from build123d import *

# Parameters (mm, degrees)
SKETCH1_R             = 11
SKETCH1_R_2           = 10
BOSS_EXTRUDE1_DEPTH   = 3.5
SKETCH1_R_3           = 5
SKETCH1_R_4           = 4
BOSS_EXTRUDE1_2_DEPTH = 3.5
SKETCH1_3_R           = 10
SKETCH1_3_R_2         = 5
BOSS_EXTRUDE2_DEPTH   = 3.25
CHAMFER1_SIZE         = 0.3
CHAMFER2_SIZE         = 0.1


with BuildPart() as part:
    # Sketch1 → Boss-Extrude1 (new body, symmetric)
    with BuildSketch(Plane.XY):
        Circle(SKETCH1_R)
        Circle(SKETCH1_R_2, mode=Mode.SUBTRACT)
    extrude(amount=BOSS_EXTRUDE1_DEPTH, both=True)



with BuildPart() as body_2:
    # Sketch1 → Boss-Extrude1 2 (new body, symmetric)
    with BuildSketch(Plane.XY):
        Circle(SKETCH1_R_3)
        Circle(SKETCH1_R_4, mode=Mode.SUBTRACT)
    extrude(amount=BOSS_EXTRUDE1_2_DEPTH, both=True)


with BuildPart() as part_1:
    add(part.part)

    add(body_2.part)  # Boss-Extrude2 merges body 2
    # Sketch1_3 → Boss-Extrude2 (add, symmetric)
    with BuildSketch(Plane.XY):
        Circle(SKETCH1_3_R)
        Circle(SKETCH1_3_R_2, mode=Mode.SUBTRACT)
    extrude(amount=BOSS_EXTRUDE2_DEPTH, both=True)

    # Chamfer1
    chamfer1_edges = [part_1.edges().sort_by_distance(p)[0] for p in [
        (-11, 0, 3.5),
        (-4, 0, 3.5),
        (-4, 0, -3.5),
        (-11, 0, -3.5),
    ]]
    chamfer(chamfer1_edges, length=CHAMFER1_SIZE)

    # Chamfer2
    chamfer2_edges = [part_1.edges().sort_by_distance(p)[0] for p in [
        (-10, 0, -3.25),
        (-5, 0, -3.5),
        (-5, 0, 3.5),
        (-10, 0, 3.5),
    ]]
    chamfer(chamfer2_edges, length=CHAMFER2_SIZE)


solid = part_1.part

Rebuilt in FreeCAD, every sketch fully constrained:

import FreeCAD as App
import Part
import Sketcher

V = App.Vector
Q = App.Units.Quantity


def edges_at(feature, points):
    """Names of the edges that pass closest to the given points."""
    edges = feature.Shape.Edges
    near = lambda p: min(range(len(edges)), key=lambda i: edges[i].distToShape(Part.Vertex(*p))[0])
    return sorted({f"Edge{near(p) + 1}" for p in points})

doc = App.newDocument("Part")
body = doc.addObject("PartDesign::Body", "Body")

# Sketch on XY plane
sketch1 = body.newObject("Sketcher::SketchObject", "Sketch")
sketch1.AttachmentSupport = (doc.getObject("XY_Plane"), [""])
sketch1.MapMode = "FlatFace"
sketch1.addGeometry(Part.Circle(V(0, 0, 0), V(0, 0, 1), 11), False)
sketch1.addGeometry(Part.Circle(V(0, 0, 0), V(0, 0, 1), 10), False)
sketch1.addConstraint(Sketcher.Constraint("Coincident", 0, 3, -1, 1))
sketch1.addConstraint(Sketcher.Constraint("Coincident", 1, 3, -1, 1))
sketch1.addConstraint(Sketcher.Constraint("Diameter", 0, Q("22 mm")))
sketch1.addConstraint(Sketcher.Constraint("Diameter", 1, Q("20 mm")))
pad1 = body.newObject("PartDesign::Pad", "Pad")
pad1.Profile = sketch1
pad1.Length = 7
pad1.Midplane = True
body2 = doc.addObject("PartDesign::Body", "Body001")

# Sketch on XY plane
sketch2 = body2.newObject("Sketcher::SketchObject", "Sketch001")
sketch2.AttachmentSupport = (doc.getObject("XY_Plane001"), [""])
sketch2.MapMode = "FlatFace"
sketch2.addGeometry(Part.Circle(V(0, 0, 0), V(0, 0, 1), 5), False)
sketch2.addGeometry(Part.Circle(V(0, 0, 0), V(0, 0, 1), 4), False)
sketch2.addConstraint(Sketcher.Constraint("Coincident", 0, 3, -1, 1))
sketch2.addConstraint(Sketcher.Constraint("Coincident", 1, 3, -1, 1))
sketch2.addConstraint(Sketcher.Constraint("Diameter", 0, Q("10 mm")))
sketch2.addConstraint(Sketcher.Constraint("Diameter", 1, Q("8 mm")))
pad2 = body2.newObject("PartDesign::Pad", "Pad001")
pad2.Profile = sketch2
pad2.Length = 7
pad2.Midplane = True
body.AllowCompound = True
doc.recompute()

boolean = body.newObject("PartDesign::Boolean", "Boolean")
boolean.Type = "Fuse"
boolean.addObjects([body2])

# Sketch on XY plane
sketch3 = body.newObject("Sketcher::SketchObject", "Sketch002")
sketch3.AttachmentSupport = (doc.getObject("XY_Plane"), [""])
sketch3.MapMode = "FlatFace"
sketch3.addGeometry(Part.Circle(V(0, 0, 0), V(0, 0, 1), 10), False)
sketch3.addGeometry(Part.Circle(V(0, 0, 0), V(0, 0, 1), 5), False)
sketch3.addConstraint(Sketcher.Constraint("Coincident", 0, 3, -1, 1))
sketch3.addConstraint(Sketcher.Constraint("Coincident", 1, 3, -1, 1))
sketch3.addConstraint(Sketcher.Constraint("Diameter", 0, Q("20 mm")))
sketch3.addConstraint(Sketcher.Constraint("Diameter", 1, Q("10 mm")))
pad3 = body.newObject("PartDesign::Pad", "Pad002")
pad3.Profile = sketch3
pad3.Length = 6.5
pad3.Midplane = True
doc.recompute()

chamfer = body.newObject("PartDesign::Chamfer", "Chamfer")
chamfer.Base = (pad3, edges_at(pad3, [
    (-11, 0, 3.5),
    (-4, 0, 3.5),
    (-4, 0, -3.5),
    (-11, 0, -3.5),
]))
chamfer.Size = 0.3
doc.recompute()

chamfer2 = body.newObject("PartDesign::Chamfer", "Chamfer001")
chamfer2.Base = (chamfer, edges_at(chamfer, [
    (-10, 0, -3.25),
    (-5, 0, -3.5),
    (-5, 0, 3.5),
    (-10, 0, 3.5),
]))
chamfer2.Size = 0.1

doc.recompute()
